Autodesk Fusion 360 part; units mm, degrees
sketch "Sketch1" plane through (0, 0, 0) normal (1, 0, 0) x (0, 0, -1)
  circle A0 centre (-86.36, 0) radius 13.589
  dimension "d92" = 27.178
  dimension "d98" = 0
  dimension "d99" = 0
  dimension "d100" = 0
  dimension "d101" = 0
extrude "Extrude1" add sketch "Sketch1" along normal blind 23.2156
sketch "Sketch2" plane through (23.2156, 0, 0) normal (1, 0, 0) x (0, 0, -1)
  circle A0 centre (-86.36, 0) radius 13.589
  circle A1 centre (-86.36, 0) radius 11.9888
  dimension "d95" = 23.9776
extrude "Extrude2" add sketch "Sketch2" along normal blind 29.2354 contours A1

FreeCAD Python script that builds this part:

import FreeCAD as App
import Part
import Sketcher

V = App.Vector
Q = App.Units.Quantity

doc = App.newDocument("Part")
body = doc.addObject("PartDesign::Body", "Body")

sketch1 = body.newObject("Sketcher::SketchObject", "Sketch")
sketch1.AttachmentSupport = (doc.getObject("YZ_Plane"), [""])
sketch1.MapMode = "FlatFace"
sketch1.addGeometry(Part.Circle(V(0, 86.36, 0), V(0, 0, 1), 13.589), False)
sketch1.addConstraint(Sketcher.Constraint("PointOnObject", 0, 3, -2))
sketch1.addConstraint(Sketcher.Constraint("Diameter", 0, Q("1.07 in")))
sketch1.addConstraint(Sketcher.Constraint("DistanceY", -1, 1, 0, 3, Q("3.4 in")))
pad1 = body.newObject("PartDesign::Pad", "Pad")
pad1.Profile = sketch1
pad1.Length = Q("0.914 in")

sketch2 = body.newObject("Sketcher::SketchObject", "Sketch001")
sketch2.AttachmentSupport = (doc.getObject("YZ_Plane"), [""])
sketch2.MapMode = "FlatFace"
sketch2.AttachmentOffset = App.Placement(V(0, 0, 0.914 * 25.4), App.Rotation())
sketch2.addGeometry(Part.Circle(V(0, 86.36, 0), V(0, 0, 1), 11.9888), False)
sketch2.addConstraint(Sketcher.Constraint("PointOnObject", 0, 3, -2))
sketch2.addConstraint(Sketcher.Constraint("Diameter", 0, Q("0.944 in")))
sketch2.addConstraint(Sketcher.Constraint("DistanceY", -1, 1, 0, 3, Q("3.4 in")))
pad2 = body.newObject("PartDesign::Pad", "Pad001")
pad2.Profile = sketch2
pad2.Length = Q("1.151 in")

doc.recompute()
